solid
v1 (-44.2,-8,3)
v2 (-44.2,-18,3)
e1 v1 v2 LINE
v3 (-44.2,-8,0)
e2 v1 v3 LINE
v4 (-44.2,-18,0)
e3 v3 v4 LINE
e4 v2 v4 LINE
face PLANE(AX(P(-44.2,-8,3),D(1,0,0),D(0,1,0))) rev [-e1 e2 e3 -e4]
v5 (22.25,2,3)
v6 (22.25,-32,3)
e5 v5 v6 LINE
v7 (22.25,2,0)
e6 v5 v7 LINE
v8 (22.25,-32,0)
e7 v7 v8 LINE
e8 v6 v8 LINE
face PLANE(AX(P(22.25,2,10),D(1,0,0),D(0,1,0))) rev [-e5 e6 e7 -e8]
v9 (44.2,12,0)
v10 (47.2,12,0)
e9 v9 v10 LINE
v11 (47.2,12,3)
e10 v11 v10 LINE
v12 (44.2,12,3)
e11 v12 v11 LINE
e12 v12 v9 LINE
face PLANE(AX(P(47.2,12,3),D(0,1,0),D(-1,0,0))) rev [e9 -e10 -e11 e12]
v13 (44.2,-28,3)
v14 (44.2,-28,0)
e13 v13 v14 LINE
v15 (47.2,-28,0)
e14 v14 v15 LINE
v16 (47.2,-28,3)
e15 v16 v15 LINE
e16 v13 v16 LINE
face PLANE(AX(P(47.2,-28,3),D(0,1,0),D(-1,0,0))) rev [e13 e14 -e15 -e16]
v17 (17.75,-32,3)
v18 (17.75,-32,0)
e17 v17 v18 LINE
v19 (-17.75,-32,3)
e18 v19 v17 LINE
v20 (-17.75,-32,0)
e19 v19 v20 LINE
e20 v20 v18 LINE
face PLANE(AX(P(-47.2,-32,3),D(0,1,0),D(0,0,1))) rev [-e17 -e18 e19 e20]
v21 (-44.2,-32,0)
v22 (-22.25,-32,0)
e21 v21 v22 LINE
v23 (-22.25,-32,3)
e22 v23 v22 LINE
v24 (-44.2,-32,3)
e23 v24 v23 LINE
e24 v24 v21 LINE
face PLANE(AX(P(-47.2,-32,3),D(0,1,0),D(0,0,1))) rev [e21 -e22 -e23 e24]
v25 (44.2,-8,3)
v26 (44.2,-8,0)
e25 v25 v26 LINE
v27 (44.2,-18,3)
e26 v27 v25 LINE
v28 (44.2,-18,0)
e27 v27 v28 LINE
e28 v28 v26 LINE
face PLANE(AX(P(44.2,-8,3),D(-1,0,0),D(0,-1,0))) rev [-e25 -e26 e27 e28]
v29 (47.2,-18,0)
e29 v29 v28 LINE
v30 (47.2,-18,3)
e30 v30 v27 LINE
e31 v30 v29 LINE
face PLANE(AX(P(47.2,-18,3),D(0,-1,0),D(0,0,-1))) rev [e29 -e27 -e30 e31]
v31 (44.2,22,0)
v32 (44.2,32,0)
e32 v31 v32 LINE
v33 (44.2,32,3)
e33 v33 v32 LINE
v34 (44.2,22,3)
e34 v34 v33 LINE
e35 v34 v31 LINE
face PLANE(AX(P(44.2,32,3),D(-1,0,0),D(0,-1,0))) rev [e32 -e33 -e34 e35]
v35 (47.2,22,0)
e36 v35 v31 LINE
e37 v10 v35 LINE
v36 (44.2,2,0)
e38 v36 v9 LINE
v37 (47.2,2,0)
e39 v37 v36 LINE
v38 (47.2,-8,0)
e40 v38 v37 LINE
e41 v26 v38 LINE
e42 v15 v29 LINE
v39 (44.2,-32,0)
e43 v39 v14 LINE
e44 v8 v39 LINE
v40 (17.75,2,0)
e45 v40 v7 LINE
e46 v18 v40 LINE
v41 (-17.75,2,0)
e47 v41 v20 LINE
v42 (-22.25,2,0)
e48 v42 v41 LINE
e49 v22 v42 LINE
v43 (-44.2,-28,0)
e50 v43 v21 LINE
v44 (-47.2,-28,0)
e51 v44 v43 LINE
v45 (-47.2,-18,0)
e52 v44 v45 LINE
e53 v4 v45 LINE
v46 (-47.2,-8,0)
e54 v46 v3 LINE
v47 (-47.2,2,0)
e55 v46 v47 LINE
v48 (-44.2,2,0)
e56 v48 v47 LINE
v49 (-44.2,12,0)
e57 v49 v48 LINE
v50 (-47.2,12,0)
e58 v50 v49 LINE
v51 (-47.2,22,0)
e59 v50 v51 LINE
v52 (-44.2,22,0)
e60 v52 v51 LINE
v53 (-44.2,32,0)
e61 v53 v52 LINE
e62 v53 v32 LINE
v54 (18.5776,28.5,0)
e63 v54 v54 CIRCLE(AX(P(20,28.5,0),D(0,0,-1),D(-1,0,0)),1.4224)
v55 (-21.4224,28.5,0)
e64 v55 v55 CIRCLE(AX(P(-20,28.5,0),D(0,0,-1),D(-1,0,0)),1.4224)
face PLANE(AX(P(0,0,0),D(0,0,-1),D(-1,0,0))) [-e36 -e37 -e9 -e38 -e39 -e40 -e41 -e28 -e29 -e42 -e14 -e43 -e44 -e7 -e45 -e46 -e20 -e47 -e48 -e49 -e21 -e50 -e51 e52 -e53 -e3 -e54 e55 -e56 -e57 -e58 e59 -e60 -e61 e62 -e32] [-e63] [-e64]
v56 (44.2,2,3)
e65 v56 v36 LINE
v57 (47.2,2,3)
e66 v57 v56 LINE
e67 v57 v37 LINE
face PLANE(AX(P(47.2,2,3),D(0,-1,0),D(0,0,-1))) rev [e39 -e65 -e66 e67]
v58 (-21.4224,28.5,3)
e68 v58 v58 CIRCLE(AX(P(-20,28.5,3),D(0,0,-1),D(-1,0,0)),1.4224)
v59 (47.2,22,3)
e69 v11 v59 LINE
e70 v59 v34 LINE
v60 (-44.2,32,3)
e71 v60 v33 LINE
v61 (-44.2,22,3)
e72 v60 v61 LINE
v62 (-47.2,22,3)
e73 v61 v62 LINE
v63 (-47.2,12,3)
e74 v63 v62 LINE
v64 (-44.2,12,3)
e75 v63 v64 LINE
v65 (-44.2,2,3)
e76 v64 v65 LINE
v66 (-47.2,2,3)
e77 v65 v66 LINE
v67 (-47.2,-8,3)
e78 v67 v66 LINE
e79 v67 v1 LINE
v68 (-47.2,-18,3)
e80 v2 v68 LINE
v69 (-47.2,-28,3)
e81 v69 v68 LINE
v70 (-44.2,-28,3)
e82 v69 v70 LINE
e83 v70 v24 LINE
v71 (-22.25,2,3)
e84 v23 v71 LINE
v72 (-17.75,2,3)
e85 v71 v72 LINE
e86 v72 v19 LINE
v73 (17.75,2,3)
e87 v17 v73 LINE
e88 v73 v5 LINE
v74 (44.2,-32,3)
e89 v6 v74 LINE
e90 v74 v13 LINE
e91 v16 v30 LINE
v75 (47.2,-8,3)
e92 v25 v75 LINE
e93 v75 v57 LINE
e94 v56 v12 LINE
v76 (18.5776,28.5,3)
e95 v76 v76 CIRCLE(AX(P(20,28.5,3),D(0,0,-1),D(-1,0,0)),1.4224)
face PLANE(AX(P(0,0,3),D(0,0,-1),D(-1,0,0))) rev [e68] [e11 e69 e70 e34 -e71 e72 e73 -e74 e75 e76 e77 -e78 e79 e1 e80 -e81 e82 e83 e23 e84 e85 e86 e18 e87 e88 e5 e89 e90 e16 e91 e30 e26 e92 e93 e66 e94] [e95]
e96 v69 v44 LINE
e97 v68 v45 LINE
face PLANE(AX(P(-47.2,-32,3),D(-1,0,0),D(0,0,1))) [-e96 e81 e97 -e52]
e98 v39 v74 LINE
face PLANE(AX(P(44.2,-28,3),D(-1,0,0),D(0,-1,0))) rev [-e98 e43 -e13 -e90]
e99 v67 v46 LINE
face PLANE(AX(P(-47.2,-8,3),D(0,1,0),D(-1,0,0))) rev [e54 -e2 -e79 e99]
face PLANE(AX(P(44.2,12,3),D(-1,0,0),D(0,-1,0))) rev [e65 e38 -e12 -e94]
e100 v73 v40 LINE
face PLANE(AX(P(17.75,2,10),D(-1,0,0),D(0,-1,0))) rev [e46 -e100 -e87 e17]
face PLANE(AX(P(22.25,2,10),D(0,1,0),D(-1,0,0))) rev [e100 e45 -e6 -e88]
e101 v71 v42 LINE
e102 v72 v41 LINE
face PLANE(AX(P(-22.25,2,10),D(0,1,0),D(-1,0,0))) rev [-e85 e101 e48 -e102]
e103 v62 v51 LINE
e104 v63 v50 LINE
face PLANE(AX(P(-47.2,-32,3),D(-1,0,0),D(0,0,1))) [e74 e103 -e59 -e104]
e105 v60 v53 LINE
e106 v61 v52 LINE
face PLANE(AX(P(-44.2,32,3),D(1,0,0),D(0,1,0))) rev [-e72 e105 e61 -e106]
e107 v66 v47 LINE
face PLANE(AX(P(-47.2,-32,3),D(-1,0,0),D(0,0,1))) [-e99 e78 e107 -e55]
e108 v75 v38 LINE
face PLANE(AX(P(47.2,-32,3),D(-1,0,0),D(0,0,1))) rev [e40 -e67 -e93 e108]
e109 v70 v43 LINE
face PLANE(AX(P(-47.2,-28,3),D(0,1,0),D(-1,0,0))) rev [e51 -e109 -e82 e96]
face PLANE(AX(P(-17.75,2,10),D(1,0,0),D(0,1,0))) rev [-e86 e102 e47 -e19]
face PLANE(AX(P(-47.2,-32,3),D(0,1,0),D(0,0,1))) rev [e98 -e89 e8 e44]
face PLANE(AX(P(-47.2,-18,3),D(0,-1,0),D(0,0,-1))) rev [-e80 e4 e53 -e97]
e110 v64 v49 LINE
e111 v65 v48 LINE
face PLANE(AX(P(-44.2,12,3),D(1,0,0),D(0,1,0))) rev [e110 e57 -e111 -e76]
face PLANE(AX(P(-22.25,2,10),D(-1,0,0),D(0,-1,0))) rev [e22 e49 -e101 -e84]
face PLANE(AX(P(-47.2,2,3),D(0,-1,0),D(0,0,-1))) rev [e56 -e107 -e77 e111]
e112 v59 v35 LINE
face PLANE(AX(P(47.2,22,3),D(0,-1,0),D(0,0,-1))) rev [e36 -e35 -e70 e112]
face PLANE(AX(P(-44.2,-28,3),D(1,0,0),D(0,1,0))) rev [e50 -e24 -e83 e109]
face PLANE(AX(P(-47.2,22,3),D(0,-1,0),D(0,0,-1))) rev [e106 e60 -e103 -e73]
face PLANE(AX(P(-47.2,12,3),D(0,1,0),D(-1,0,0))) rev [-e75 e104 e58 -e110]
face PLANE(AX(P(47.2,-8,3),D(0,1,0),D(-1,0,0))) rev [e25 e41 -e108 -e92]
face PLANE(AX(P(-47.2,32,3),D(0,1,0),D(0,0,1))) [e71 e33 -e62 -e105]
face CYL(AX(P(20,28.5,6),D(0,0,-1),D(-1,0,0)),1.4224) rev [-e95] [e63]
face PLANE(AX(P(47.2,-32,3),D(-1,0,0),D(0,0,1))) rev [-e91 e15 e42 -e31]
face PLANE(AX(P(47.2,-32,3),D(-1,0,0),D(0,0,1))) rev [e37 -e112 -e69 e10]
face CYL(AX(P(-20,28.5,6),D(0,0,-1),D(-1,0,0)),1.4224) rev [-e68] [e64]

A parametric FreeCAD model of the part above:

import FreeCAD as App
import Part
import Sketcher
Q = App.Units.Quantity

doc = App.newDocument("Part")
body = doc.addObject("PartDesign::Body", "Body")

# Sketch on XY plane
sketch1 = body.newObject("Sketcher::SketchObject", "Sketch")
sketch1.AttachmentSupport = (doc.getObject("XY_Plane"), [""])
sketch1.MapMode = "FlatFace"
sketch1.addGeometry([
    Part.LineSegment(App.Vector(-47, 32, 0), App.Vector(-47, -32, 0)),
    Part.LineSegment(App.Vector(-47, -32, 0), App.Vector(47, -32, 0)),
    Part.LineSegment(App.Vector(47, -32, 0), App.Vector(47, 32, 0)),
    Part.LineSegment(App.Vector(47, 32, 0), App.Vector(-47, 32, 0)),
], False)
sketch1.addConstraint([
    Sketcher.Constraint("Coincident", 0, 2, 1, 1),
    Sketcher.Constraint("Coincident", 1, 2, 2, 1),
    Sketcher.Constraint("Coincident", 2, 2, 3, 1),
    Sketcher.Constraint("Coincident", 3, 2, 0, 1),
    Sketcher.Constraint("Vertical", 0),
    Sketcher.Constraint("Horizontal", 1),
    Sketcher.Constraint("Vertical", 2),
    Sketcher.Constraint("Horizontal", 3),
    Sketcher.Constraint("Symmetric", 0, 2, 2, 2, -1, 1),
    Sketcher.Constraint("DistanceY", 0, 2, 0, 1, Q("64 mm")),
    Sketcher.Constraint("DistanceX", 1, 1, 1, 2, Q("94.4 mm")),
])
pad1 = body.newObject("PartDesign::Pad", "Pad")
pad1.Profile = sketch1
pad1.Length = 3

# Sketch on XY plane
sketch2 = body.newObject("Sketcher::SketchObject", "Sketch001")
sketch2.AttachmentSupport = (doc.getObject("XY_Plane"), [""])
sketch2.MapMode = "FlatFace"
sketch2.addGeometry([
    Part.LineSegment(App.Vector(47.2, 12, 0), App.Vector(47.2, 2, 0)),  # 0
    Part.LineSegment(App.Vector(47.2, 2, 0), App.Vector(44.2, 2, 0)),  # 1
    Part.LineSegment(App.Vector(44.2, 2, 0), App.Vector(44.2, 12, 0)),  # 2
    Part.LineSegment(App.Vector(44.2, 12, 0), App.Vector(47.2, 12, 0)),  # 3
    Part.LineSegment(App.Vector(47.2, 32, 0), App.Vector(47.2, 22, 0)),  # 4
    Part.LineSegment(App.Vector(47.2, 22, 0), App.Vector(44.2, 22, 0)),  # 5
    Part.LineSegment(App.Vector(44.2, 22, 0), App.Vector(44.2, 32, 0)),  # 6
    Part.LineSegment(App.Vector(44.2, 32, 0), App.Vector(47.2, 32, 0)),  # 7
    Part.LineSegment(App.Vector(47.2, -8, 0), App.Vector(47.2, -18, 0)),  # 8
    Part.LineSegment(App.Vector(47.2, -18, 0), App.Vector(44.2, -18, 0)),  # 9
    Part.LineSegment(App.Vector(44.2, -18, 0), App.Vector(44.2, -8, 0)),  # 10
    Part.LineSegment(App.Vector(44.2, -8, 0), App.Vector(47.2, -8, 0)),  # 11
    Part.LineSegment(App.Vector(47.2, -28, 0), App.Vector(47.2, -38, 0)),  # 12
    Part.LineSegment(App.Vector(47.2, -38, 0), App.Vector(44.2, -38, 0)),  # 13
    Part.LineSegment(App.Vector(44.2, -38, 0), App.Vector(44.2, -28, 0)),  # 14
    Part.LineSegment(App.Vector(44.2, -28, 0), App.Vector(47.2, -28, 0)),  # 15
    Part.LineSegment(App.Vector(-44.2, -28, 0), App.Vector(-44.2, -38, 0)),  # 16
    Part.LineSegment(App.Vector(-44.2, -38, 0), App.Vector(-47.2, -38, 0)),  # 17
    Part.LineSegment(App.Vector(-47.2, -38, 0), App.Vector(-47.2, -28, 0)),  # 18
    Part.LineSegment(App.Vector(-47.2, -28, 0), App.Vector(-44.2, -28, 0)),  # 19
    Part.LineSegment(App.Vector(-44.2, -8, 0), App.Vector(-44.2, -18, 0)),  # 20
    Part.LineSegment(App.Vector(-44.2, -18, 0), App.Vector(-47.2, -18, 0)),  # 21
    Part.LineSegment(App.Vector(-47.2, -18, 0), App.Vector(-47.2, -8, 0)),  # 22
    Part.LineSegment(App.Vector(-47.2, -8, 0), App.Vector(-44.2, -8, 0)),  # 23
    Part.LineSegment(App.Vector(-44.2, 12, 0), App.Vector(-44.2, 2, 0)),  # 24
    Part.LineSegment(App.Vector(-44.2, 2, 0), App.Vector(-47.2, 2, 0)),  # 25
    Part.LineSegment(App.Vector(-47.2, 2, 0), App.Vector(-47.2, 12, 0)),  # 26
    Part.LineSegment(App.Vector(-47.2, 12, 0), App.Vector(-44.2, 12, 0)),  # 27
    Part.LineSegment(App.Vector(-44.2, 32, 0), App.Vector(-44.2, 22, 0)),  # 28
    Part.LineSegment(App.Vector(-44.2, 22, 0), App.Vector(-47.2, 22, 0)),  # 29
    Part.LineSegment(App.Vector(-47.2, 22, 0), App.Vector(-47.2, 32, 0)),  # 30
    Part.LineSegment(App.Vector(-47.2, 32, 0), App.Vector(-44.2, 32, 0)),  # 31
], False)
sketch2.addConstraint([
    Sketcher.Constraint("Coincident", 0, 2, 1, 1),
    Sketcher.Constraint("Coincident", 1, 2, 2, 1),
    Sketcher.Constraint("Coincident", 2, 2, 3, 1),
    Sketcher.Constraint("Coincident", 3, 2, 0, 1),
    Sketcher.Constraint("Coincident", 4, 2, 5, 1),
    Sketcher.Constraint("Coincident", 5, 2, 6, 1),
    Sketcher.Constraint("Coincident", 6, 2, 7, 1),
    Sketcher.Constraint("Coincident", 7, 2, 4, 1),
    Sketcher.Constraint("Coincident", 8, 2, 9, 1),
    Sketcher.Constraint("Coincident", 9, 2, 10, 1),
    Sketcher.Constraint("Coincident", 10, 2, 11, 1),
    Sketcher.Constraint("Coincident", 11, 2, 8, 1),
    Sketcher.Constraint("Coincident", 12, 2, 13, 1),
    Sketcher.Constraint("Coincident", 13, 2, 14, 1),
    Sketcher.Constraint("Coincident", 14, 2, 15, 1),
    Sketcher.Constraint("Coincident", 15, 2, 12, 1),
    Sketcher.Constraint("Coincident", 16, 2, 17, 1),
    Sketcher.Constraint("Coincident", 17, 2, 18, 1),
    Sketcher.Constraint("Coincident", 18, 2, 19, 1),
    Sketcher.Constraint("Coincident", 19, 2, 16, 1),
    Sketcher.Constraint("Coincident", 20, 2, 21, 1),
    Sketcher.Constraint("Coincident", 21, 2, 22, 1),
    Sketcher.Constraint("Coincident", 22, 2, 23, 1),
    Sketcher.Constraint("Coincident", 23, 2, 20, 1),
    Sketcher.Constraint("Coincident", 24, 2, 25, 1),
    Sketcher.Constraint("Coincident", 25, 2, 26, 1),
    Sketcher.Constraint("Coincident", 26, 2, 27, 1),
    Sketcher.Constraint("Coincident", 27, 2, 24, 1),
    Sketcher.Constraint("Coincident", 28, 2, 29, 1),
    Sketcher.Constraint("Coincident", 29, 2, 30, 1),
    Sketcher.Constraint("Coincident", 30, 2, 31, 1),
    Sketcher.Constraint("Coincident", 31, 2, 28, 1),
    Sketcher.Constraint("Vertical", 0),
    Sketcher.Constraint("Horizontal", 1),
    Sketcher.Constraint("Vertical", 2),
    Sketcher.Constraint("Horizontal", 3),
    Sketcher.Constraint("Vertical", 4),
    Sketcher.Constraint("Horizontal", 5),
    Sketcher.Constraint("Vertical", 6),
    Sketcher.Constraint("Horizontal", 7),
    Sketcher.Constraint("Vertical", 8),
    Sketcher.Constraint("Horizontal", 9),
    Sketcher.Constraint("Vertical", 10),
    Sketcher.Constraint("Horizontal", 11),
    Sketcher.Constraint("Vertical", 12),
    Sketcher.Constraint("Horizontal", 13),
    Sketcher.Constraint("Vertical", 14),
    Sketcher.Constraint("Horizontal", 15),
    Sketcher.Constraint("Vertical", 16),
    Sketcher.Constraint("Horizontal", 17),
    Sketcher.Constraint("Vertical", 18),
    Sketcher.Constraint("Horizontal", 19),
    Sketcher.Constraint("Vertical", 20),
    Sketcher.Constraint("Horizontal", 21),
    Sketcher.Constraint("Vertical", 22),
    Sketcher.Constraint("Horizontal", 23),
    Sketcher.Constraint("Vertical", 24),
    Sketcher.Constraint("Horizontal", 25),
    Sketcher.Constraint("Vertical", 26),
    Sketcher.Constraint("Horizontal", 27),
    Sketcher.Constraint("Vertical", 28),
    Sketcher.Constraint("Horizontal", 29),
    Sketcher.Constraint("Vertical", 30),
    Sketcher.Constraint("Horizontal", 31),
    Sketcher.Constraint("Symmetric", 13, 2, 16, 2, -2),
    Sketcher.Constraint("Symmetric", 15, 2, 18, 2, -2),
    Sketcher.Constraint("Symmetric", 9, 2, 20, 2, -2),
    Sketcher.Constraint("Symmetric", 11, 2, 22, 2, -2),
    Sketcher.Constraint("Symmetric", 1, 2, 24, 2, -2),
    Sketcher.Constraint("Symmetric", 3, 2, 26, 2, -2),
    Sketcher.Constraint("Symmetric", 5, 2, 28, 2, -2),
    Sketcher.Constraint("Symmetric", 7, 2, 30, 2, -2),
    Sketcher.Constraint("Vertical", 3, 2, 4, 2),
    Sketcher.Constraint("Vertical", 2, 2, 5, 2),
    Sketcher.Constraint("Vertical", 7, 2, 8, 2),
    Sketcher.Constraint("Vertical", 6, 2, 9, 2),
    Sketcher.Constraint("Vertical", 11, 2, 12, 2),
    Sketcher.Constraint("Vertical", 10, 2, 13, 2),
    Sketcher.Constraint("Equal", 2, 4),
    Sketcher.Constraint("Equal", 6, 8),
    Sketcher.Constraint("Equal", 10, 12),
    Sketcher.Constraint("DistanceX", 1, 2, 1, 1, Q("3 mm")),
    Sketcher.Constraint("DistanceY", 0, 2, 0, 1, Q("10 mm")),
    Sketcher.Constraint("DistanceY", -1, 1, 0, 2, Q("2 mm")),
    Sketcher.Constraint("DistanceY", -1, 1, 4, 2, Q("22 mm")),
    Sketcher.Constraint("DistanceY", 8, 2, -1, 1, Q("18 mm")),
    Sketcher.Constraint("DistanceY", 12, 2, -1, 1, Q("38 mm")),
    Sketcher.Constraint("DistanceX", -1, 1, 0, 2, Q("47.2 mm")),
])
pocket1 = body.newObject("PartDesign::Pocket", "Pocket")
pocket1.Profile = sketch2
pocket1.Length = 3
pocket1.Reversed = True

# Sketch on XY plane
sketch3 = body.newObject("Sketcher::SketchObject", "Sketch002")
sketch3.AttachmentSupport = (doc.getObject("XY_Plane"), [""])
sketch3.MapMode = "FlatFace"
sketch3.addGeometry([
    Part.LineSegment(App.Vector(22.2, 2, 0), App.Vector(22.2, -32, 0)),  # 0
    Part.LineSegment(App.Vector(22.2, -32, 0), App.Vector(17.8, -32, 0)),  # 1
    Part.LineSegment(App.Vector(17.8, -32, 0), App.Vector(17.8, 2, 0)),  # 2
    Part.LineSegment(App.Vector(17.8, 2, 0), App.Vector(22.2, 2, 0)),  # 3
    Part.LineSegment(App.Vector(-17.8, 2, 0), App.Vector(-17.8, -32, 0)),  # 4
    Part.LineSegment(App.Vector(-17.8, -32, 0), App.Vector(-22.2, -32, 0)),  # 5
    Part.LineSegment(App.Vector(-22.2, -32, 0), App.Vector(-22.2, 2, 0)),  # 6
    Part.LineSegment(App.Vector(-22.2, 2, 0), App.Vector(-17.8, 2, 0)),  # 7
], False)
sketch3.addConstraint([
    Sketcher.Constraint("Coincident", 0, 2, 1, 1),
    Sketcher.Constraint("Coincident", 1, 2, 2, 1),
    Sketcher.Constraint("Coincident", 2, 2, 3, 1),
    Sketcher.Constraint("Coincident", 3, 2, 0, 1),
    Sketcher.Constraint("Coincident", 4, 2, 5, 1),
    Sketcher.Constraint("Coincident", 5, 2, 6, 1),
    Sketcher.Constraint("Coincident", 6, 2, 7, 1),
    Sketcher.Constraint("Coincident", 7, 2, 4, 1),
    Sketcher.Constraint("Vertical", 0),
    Sketcher.Constraint("Horizontal", 1),
    Sketcher.Constraint("Vertical", 2),
    Sketcher.Constraint("Horizontal", 3),
    Sketcher.Constraint("Vertical", 4),
    Sketcher.Constraint("Horizontal", 5),
    Sketcher.Constraint("Vertical", 6),
    Sketcher.Constraint("Horizontal", 7),
    Sketcher.Constraint("Symmetric", 1, 2, 4, 2, -2),
    Sketcher.Constraint("Symmetric", 3, 2, 6, 2, -2),
    Sketcher.Constraint("DistanceY", 0, 2, 0, 1, Q("34 mm")),
    Sketcher.Constraint("DistanceX", 1, 2, 1, 1, Q("4.5 mm")),
    Sketcher.Constraint("DistanceY", 0, 2, -1, 1, Q("32 mm")),
    Sketcher.Constraint("DistanceX", 4, 2, 0, 2, Q("40 mm")),
])
pocket2 = body.newObject("PartDesign::Pocket", "Pocket001")
pocket2.Profile = sketch3
pocket2.Length = 10
pocket2.Reversed = True

# Sketch on XY plane
sketch4 = body.newObject("Sketcher::SketchObject", "Sketch003")
sketch4.AttachmentSupport = (doc.getObject("XY_Plane"), [""])
sketch4.MapMode = "FlatFace"
sketch4.addGeometry([
    Part.Circle(App.Vector(20, 28.5, 0), App.Vector(0, 0, 1), 1.4),
    Part.Circle(App.Vector(-20, 28.5, 0), App.Vector(0, 0, 1), 1.4),
], False)
sketch4.addConstraint([
    Sketcher.Constraint("Equal", 0, 1),
    Sketcher.Constraint("Symmetric", 0, 3, 1, 3, -2),
    Sketcher.Constraint("DistanceX", -1, 1, 0, 3, Q("20 mm")),
    Sketcher.Constraint("Diameter", 0, Q("2.8448 mm")),
    Sketcher.Constraint("DistanceY", -1, 1, 0, 3, Q("28.5 mm")),
])
pocket3 = body.newObject("PartDesign::Pocket", "Pocket002")
pocket3.Profile = sketch4
pocket3.Length = 6
pocket3.Reversed = True

doc.recompute()
